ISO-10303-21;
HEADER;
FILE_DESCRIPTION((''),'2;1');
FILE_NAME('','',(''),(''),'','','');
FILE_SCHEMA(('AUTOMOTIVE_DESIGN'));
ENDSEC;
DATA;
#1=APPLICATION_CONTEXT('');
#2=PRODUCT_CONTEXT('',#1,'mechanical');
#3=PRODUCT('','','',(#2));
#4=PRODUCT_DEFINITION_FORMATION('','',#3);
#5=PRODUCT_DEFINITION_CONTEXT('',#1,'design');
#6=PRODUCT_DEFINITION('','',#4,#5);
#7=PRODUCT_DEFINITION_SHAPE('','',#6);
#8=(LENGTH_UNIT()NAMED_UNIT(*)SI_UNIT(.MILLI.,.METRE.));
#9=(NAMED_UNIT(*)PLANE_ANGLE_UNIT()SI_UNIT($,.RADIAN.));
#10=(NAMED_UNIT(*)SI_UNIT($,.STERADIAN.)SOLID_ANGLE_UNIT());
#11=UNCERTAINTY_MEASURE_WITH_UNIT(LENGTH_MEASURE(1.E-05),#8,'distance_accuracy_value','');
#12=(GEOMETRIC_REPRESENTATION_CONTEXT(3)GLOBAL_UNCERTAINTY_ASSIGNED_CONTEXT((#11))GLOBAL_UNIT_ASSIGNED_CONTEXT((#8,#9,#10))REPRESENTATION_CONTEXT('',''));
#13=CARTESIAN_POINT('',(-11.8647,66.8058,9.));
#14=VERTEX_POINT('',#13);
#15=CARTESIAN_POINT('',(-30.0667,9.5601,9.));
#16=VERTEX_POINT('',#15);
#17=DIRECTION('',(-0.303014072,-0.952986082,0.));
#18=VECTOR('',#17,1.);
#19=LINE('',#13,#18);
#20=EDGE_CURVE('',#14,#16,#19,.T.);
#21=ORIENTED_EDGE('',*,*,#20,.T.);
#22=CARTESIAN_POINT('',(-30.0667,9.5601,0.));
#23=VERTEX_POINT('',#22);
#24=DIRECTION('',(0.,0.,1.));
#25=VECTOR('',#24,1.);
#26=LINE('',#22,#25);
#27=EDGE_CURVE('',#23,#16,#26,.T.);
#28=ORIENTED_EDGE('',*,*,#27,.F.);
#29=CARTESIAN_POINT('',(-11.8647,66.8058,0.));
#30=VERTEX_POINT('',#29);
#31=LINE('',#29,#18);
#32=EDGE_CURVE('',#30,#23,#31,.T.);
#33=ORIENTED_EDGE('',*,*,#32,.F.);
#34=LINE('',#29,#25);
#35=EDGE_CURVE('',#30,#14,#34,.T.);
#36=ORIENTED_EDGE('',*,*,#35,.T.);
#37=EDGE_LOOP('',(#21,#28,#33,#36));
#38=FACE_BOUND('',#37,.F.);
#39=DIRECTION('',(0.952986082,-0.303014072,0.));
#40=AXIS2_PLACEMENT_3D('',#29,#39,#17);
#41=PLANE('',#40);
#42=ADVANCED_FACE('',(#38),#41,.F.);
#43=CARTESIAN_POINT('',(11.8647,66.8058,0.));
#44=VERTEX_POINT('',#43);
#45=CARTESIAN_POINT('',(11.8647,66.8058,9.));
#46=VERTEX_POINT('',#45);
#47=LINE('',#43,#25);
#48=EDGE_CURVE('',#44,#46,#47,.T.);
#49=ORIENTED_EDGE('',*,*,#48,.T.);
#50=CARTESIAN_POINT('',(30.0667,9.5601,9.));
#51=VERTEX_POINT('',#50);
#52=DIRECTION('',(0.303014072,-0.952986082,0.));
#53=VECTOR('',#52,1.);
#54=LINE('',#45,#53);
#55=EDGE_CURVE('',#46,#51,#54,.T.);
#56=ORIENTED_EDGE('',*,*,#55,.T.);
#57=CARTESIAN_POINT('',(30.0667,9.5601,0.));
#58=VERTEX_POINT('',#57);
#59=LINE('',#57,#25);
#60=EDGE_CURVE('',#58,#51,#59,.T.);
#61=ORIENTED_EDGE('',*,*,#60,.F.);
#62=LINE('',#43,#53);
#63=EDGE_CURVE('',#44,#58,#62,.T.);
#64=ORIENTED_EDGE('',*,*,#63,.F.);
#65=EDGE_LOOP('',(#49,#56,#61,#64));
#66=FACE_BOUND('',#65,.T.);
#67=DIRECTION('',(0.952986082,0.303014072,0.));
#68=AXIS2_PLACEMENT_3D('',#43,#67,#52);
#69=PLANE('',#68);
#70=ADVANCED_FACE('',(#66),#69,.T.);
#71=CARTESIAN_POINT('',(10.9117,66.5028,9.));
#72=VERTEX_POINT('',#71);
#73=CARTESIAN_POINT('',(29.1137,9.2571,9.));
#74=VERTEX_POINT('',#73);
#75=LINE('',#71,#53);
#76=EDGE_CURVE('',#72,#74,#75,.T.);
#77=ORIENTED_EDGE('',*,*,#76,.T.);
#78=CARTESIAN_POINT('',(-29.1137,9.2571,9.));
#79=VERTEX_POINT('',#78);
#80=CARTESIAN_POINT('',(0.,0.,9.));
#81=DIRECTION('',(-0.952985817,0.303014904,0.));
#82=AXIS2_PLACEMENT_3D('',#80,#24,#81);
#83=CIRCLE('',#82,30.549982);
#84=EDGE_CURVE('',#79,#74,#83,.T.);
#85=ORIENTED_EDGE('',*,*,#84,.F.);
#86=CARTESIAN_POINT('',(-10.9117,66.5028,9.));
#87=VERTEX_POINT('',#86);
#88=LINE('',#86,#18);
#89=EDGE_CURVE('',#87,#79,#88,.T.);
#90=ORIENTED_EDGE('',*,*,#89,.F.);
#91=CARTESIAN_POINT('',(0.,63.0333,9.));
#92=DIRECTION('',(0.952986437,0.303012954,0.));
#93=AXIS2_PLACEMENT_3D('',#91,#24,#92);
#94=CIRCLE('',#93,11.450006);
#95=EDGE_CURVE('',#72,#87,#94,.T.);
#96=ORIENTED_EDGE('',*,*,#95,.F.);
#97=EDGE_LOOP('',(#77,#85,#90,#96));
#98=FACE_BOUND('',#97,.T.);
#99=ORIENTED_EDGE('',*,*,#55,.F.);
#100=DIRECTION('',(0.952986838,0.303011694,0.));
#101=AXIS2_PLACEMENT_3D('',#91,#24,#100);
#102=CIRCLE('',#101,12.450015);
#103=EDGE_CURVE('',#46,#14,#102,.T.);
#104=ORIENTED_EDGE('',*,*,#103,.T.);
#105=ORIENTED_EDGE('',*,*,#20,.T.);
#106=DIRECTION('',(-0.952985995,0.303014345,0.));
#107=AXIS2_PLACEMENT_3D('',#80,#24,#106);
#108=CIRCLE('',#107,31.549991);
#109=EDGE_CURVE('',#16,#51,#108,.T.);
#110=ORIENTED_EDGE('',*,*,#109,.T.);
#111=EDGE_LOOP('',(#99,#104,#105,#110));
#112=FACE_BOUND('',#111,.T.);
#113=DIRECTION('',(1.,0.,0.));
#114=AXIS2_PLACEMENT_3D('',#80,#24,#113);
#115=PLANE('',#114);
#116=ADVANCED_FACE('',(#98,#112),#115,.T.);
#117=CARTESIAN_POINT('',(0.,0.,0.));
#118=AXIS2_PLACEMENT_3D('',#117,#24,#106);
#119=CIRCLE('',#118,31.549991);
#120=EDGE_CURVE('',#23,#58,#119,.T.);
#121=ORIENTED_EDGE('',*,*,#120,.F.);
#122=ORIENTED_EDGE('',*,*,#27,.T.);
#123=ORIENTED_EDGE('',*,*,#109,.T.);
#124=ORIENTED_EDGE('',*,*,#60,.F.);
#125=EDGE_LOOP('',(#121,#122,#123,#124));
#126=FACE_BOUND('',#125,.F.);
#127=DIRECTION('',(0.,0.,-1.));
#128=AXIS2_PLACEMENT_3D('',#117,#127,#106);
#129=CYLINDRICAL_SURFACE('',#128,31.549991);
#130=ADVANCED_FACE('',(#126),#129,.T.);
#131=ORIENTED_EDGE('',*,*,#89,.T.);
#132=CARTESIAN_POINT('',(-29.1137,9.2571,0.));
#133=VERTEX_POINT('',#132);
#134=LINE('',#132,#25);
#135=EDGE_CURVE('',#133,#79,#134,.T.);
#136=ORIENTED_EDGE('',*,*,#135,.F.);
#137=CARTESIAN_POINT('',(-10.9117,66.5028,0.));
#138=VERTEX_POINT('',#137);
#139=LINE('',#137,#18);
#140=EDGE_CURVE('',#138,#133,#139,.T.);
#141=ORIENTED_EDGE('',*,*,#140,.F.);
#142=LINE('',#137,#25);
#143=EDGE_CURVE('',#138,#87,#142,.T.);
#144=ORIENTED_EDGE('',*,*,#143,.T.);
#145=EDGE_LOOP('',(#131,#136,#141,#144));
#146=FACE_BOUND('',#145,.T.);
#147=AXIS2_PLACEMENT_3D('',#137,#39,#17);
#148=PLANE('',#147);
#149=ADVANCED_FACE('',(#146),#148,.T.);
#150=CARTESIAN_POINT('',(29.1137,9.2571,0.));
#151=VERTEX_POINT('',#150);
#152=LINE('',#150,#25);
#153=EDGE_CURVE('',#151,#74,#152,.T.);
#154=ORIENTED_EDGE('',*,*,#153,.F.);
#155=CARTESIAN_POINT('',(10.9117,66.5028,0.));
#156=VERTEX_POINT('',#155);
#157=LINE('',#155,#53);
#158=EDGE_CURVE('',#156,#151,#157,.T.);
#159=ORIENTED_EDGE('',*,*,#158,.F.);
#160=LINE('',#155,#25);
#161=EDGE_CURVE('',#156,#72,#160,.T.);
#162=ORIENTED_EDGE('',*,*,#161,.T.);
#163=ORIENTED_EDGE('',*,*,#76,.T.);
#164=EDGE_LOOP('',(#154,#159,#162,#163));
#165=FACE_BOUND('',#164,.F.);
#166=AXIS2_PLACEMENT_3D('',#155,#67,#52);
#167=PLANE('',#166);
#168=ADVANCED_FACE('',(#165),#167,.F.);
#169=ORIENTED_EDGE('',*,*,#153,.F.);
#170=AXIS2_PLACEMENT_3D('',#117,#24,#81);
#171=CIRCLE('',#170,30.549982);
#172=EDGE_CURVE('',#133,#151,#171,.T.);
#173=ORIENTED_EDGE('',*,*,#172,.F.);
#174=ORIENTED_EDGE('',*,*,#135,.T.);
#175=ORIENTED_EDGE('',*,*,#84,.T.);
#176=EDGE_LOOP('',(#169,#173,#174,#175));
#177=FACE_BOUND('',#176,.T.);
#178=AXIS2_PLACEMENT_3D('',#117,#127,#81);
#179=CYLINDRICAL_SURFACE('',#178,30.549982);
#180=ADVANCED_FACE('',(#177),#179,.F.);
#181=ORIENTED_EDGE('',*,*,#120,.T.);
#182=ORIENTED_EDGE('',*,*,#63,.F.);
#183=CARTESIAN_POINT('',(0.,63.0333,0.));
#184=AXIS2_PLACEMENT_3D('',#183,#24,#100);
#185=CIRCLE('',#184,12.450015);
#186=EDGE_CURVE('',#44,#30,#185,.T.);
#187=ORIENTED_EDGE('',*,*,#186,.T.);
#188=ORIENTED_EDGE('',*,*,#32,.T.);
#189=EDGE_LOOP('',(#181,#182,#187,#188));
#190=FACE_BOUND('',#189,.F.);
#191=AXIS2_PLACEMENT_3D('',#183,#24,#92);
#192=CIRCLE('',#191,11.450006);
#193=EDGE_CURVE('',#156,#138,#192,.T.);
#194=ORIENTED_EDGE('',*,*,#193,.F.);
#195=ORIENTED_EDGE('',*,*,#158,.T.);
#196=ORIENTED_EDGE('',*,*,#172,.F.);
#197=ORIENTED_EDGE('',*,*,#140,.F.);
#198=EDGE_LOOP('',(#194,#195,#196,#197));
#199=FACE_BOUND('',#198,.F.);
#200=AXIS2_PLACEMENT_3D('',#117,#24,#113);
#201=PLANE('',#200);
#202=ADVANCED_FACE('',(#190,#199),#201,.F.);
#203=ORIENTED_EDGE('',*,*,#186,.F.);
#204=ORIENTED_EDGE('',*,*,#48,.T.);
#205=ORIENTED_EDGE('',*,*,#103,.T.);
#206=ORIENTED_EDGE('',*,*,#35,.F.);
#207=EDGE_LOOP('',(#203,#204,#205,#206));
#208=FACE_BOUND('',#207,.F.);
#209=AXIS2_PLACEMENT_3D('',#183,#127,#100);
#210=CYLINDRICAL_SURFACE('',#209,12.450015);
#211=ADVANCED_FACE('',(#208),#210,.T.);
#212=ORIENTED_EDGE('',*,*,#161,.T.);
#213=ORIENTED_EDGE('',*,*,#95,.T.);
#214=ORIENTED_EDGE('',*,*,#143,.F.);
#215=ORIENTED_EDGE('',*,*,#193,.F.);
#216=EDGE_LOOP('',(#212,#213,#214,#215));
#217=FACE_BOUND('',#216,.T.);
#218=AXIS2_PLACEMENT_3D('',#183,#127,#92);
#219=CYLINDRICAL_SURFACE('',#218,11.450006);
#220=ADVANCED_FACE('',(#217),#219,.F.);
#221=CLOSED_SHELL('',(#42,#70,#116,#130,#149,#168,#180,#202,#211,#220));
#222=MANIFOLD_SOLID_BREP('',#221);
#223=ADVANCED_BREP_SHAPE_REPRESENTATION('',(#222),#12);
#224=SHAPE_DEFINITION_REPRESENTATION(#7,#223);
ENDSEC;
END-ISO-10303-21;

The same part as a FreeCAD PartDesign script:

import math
import FreeCAD as App
import Part
import Sketcher
from FreeCAD import Vector
Q = App.Units.Quantity

doc = App.newDocument("Part")
body = doc.addObject("PartDesign::Body", "Body")

sketch1 = body.newObject("Sketcher::SketchObject", "Sketch")
sketch1.AttachmentSupport = (doc.getObject("XY_Plane"), [""])
sketch1.MapMode = "FlatFace"
sketch1.addGeometry([
    Part.ArcOfCircle(Part.Circle(Vector(0, 63, 0), Vector(0, 0, 1), 12), math.radians(18), math.radians(162)),
    Part.LineSegment(Vector(-12, 67, 0), Vector(-30, 10, 0)),
    Part.ArcOfCircle(Part.Circle(Vector(0, 0, 0), Vector(0, 0, 1), 32), math.radians(162), math.radians(378)),
    Part.LineSegment(Vector(30, 10, 0), Vector(12, 67, 0)),
    Part.ArcOfCircle(Part.Circle(Vector(0, 63, 0), Vector(0, 0, 1), 11), math.radians(18), math.radians(162)),
    Part.LineSegment(Vector(11, 67, 0), Vector(29, 9, 0)),
    Part.ArcOfCircle(Part.Circle(Vector(0, 0, 0), Vector(0, 0, 1), 31), math.radians(162), math.radians(378)),
    Part.LineSegment(Vector(-29, 9, 0), Vector(-11, 67, 0)),
], False)
sketch1.addConstraint([
    Sketcher.Constraint("Tangent", 0, 2, 1, 1),
    Sketcher.Constraint("Tangent", 1, 2, 2, 1),
    Sketcher.Constraint("Tangent", 2, 2, 3, 1),
    Sketcher.Constraint("Tangent", 3, 2, 0, 1),
    Sketcher.Constraint("Tangent", 4, 1, 5, 1),
    Sketcher.Constraint("Tangent", 5, 2, 6, 2),
    Sketcher.Constraint("Tangent", 6, 1, 7, 1),
    Sketcher.Constraint("Tangent", 7, 2, 4, 2),
    Sketcher.Constraint("Coincident", 2, 3, -1, 1),
    Sketcher.Constraint("Coincident", 6, 3, -1, 1),
    Sketcher.Constraint("Coincident", 4, 3, 0, 3),
    Sketcher.Constraint("PointOnObject", 0, 3, -2),
    Sketcher.Constraint("Parallel", 3, 5),
    Sketcher.Constraint("Radius", 0, Q("12.45 mm")),
    Sketcher.Constraint("Radius", 2, Q("31.55 mm")),
    Sketcher.Constraint("Radius", 4, Q("11.45 mm")),
    Sketcher.Constraint("Distance", 1, Q("60.0698 mm")),
])
pad1 = body.newObject("PartDesign::Pad", "Pad")
pad1.Profile = sketch1
pad1.Length = 9

doc.recompute()
